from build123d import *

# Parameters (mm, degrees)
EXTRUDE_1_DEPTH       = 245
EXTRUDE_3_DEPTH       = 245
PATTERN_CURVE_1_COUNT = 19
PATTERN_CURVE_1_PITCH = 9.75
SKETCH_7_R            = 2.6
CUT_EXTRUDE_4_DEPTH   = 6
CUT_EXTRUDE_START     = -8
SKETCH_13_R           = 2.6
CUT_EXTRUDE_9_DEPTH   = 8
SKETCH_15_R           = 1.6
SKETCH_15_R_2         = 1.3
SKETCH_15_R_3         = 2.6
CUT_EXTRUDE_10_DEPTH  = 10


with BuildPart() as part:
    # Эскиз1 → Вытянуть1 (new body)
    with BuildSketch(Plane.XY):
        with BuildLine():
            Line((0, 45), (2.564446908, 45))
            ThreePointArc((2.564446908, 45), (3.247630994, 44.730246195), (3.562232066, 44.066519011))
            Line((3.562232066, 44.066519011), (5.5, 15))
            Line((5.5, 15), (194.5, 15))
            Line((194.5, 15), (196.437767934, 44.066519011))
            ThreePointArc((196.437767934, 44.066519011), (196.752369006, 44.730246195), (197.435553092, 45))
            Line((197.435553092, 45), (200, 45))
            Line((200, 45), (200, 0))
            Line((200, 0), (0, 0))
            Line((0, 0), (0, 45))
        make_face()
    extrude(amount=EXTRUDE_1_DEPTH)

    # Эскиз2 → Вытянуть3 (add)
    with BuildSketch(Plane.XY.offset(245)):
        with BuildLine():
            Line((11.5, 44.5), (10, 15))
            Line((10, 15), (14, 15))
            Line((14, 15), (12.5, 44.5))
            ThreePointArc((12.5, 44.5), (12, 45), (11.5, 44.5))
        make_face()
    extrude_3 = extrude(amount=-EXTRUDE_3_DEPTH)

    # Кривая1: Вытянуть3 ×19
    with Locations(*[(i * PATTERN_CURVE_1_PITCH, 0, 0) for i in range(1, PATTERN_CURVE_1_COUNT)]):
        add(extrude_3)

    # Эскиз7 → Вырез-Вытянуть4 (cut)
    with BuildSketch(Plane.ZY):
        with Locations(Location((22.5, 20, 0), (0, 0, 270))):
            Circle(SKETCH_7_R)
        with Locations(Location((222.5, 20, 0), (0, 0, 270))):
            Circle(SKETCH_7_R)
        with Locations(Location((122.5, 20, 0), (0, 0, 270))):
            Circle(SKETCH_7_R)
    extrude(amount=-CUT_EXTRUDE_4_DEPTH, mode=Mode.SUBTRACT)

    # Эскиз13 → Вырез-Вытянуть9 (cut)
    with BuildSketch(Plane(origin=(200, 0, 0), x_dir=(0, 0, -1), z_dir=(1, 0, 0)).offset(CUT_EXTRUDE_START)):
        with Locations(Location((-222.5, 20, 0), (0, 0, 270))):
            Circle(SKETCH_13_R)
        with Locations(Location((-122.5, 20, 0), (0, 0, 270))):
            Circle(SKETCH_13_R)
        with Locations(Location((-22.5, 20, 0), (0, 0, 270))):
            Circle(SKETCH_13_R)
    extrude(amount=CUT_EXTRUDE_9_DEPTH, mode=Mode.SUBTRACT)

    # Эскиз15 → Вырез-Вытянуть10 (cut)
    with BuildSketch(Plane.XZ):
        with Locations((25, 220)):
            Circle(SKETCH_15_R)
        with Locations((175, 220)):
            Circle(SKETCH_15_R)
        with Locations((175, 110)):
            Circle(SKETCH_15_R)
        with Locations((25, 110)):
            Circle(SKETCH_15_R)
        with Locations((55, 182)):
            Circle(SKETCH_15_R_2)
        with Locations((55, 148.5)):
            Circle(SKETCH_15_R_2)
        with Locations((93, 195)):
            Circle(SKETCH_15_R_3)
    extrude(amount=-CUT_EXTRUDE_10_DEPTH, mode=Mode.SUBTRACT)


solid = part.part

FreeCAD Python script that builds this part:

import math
import FreeCAD as App
import Part
import Sketcher

V = App.Vector
Q = App.Units.Quantity

doc = App.newDocument("Part")
params = doc.addObject("Spreadsheet::Sheet", "Params")
for row, (alias, value) in enumerate([
    ("sketch1_radius", "1 mm"),
    ("sketch1_width", "200 mm"),
    ("sketch1_width2", "189 mm"),
    ("sketch1_height", "45 mm"),
    ("pad1_length", "245 mm"),
    ("sketch2_radius", "0.5 mm"),
    ("sketch2_width", "4 mm"),
    ("pad2_length", "245 mm"),
    ("linearpattern_pitch", "9.75 mm"),
    ("sketch3_diameter", "5.2 mm"),
    ("pocket1_length", "6 mm"),
    ("sketch4_diameter", "5.2 mm"),
    ("pocket2_length", "8 mm"),
    ("sketch5_diameter", "3.2 mm"),
    ("sketch5_diameter2", "2.6 mm"),
    ("sketch5_diameter3", "5.2 mm"),
    ("pocket3_length", "10 mm"),
], start=1):
    params.set(f"A{row}", alias)
    params.set(f"B{row}", "=" + value)
    params.setAlias(f"B{row}", alias)

body = doc.addObject("PartDesign::Body", "Body")

sketch1 = doc.addObject("Sketcher::SketchObject", "Sketch")
body.addObject(sketch1)
sketch1.AttachmentSupport = (doc.XY_Plane, [""])
sketch1.MapMode = "FlatFace"
sketch1.addGeometry([
    Part.LineSegment(V(2.6, 45, 0), V(0, 45, 0)),
    Part.LineSegment(V(0, 45, 0), V(0, 0, 0)),
    Part.LineSegment(V(0, 0, 0), V(200, 0, 0)),
    Part.LineSegment(V(200, 0, 0), V(200, 45, 0)),
    Part.LineSegment(V(200, 45, 0), V(197.4, 45, 0)),
    Part.ArcOfCircle(Part.Circle(V(197.4, 44, 0), V(0, 0, 1), 1), math.radians(90), math.radians(176)),
    Part.LineSegment(V(196.4, 44.1, 0), V(194.5, 15, 0)),
    Part.LineSegment(V(194.5, 15, 0), V(5.5, 15, 0)),
    Part.LineSegment(V(5.5, 15, 0), V(3.6, 44.1, 0)),
    Part.ArcOfCircle(Part.Circle(V(2.6, 44, 0), V(0, 0, 1), 1), math.radians(4), math.radians(90)),
], False)
sketch1.addConstraint([
    Sketcher.Constraint("Coincident", 0, 2, 1, 1),
    Sketcher.Constraint("Coincident", 1, 2, 2, 1),
    Sketcher.Constraint("Coincident", 2, 2, 3, 1),
    Sketcher.Constraint("Coincident", 3, 2, 4, 1),
    Sketcher.Constraint("Tangent", 4, 2, 5, 1),
    Sketcher.Constraint("Tangent", 5, 2, 6, 1),
    Sketcher.Constraint("Coincident", 6, 2, 7, 1),
    Sketcher.Constraint("Coincident", 7, 2, 8, 1),
    Sketcher.Constraint("Tangent", 8, 2, 9, 1),
    Sketcher.Constraint("Tangent", 9, 2, 0, 1),
    Sketcher.Constraint("Horizontal", 0),
    Sketcher.Constraint("Vertical", 1),
    Sketcher.Constraint("Horizontal", 2),
    Sketcher.Constraint("Vertical", 3),
    Sketcher.Constraint("Horizontal", 4),
    Sketcher.Constraint("Horizontal", 7),
    Sketcher.Constraint("Coincident", 1, 2, -1, 1),
    Sketcher.Constraint("Equal", 5, 9),
    Sketcher.Constraint("Horizontal", 5, 3, 9, 3),
    Sketcher.Constraint("Horizontal", 5, 2, 8, 2),
    Sketcher.Constraint("Equal", 0, 4),
    Sketcher.Constraint("Radius", 5, Q("1 mm")),
    Sketcher.Constraint("DistanceX", 2, 1, 2, 2, Q("200 mm")),
    Sketcher.Constraint("DistanceX", 7, 2, 7, 1, Q("189 mm")),
    Sketcher.Constraint("DistanceY", 1, 2, 1, 1, Q("45 mm")),
    Sketcher.Constraint("DistanceY", -1, 1, 6, 2, Q("15 mm")),
    Sketcher.Constraint("Distance", 6, Q("29.13104 mm")),
])
sketch1.setExpression("Constraints[21]", "Params.sketch1_radius")
sketch1.setExpression("Constraints[22]", "Params.sketch1_width")
sketch1.setExpression("Constraints[23]", "Params.sketch1_width2")
sketch1.setExpression("Constraints[24]", "Params.sketch1_height")
pad1 = doc.addObject("PartDesign::Pad", "Pad")
body.addObject(pad1)
pad1.Profile = sketch1
pad1.setExpression("Length", "Params.pad1_length")

sketch2 = doc.addObject("Sketcher::SketchObject", "Sketch001")
body.addObject(sketch2)
sketch2.AttachmentSupport = (doc.XY_Plane, [""])
sketch2.MapMode = "FlatFace"
sketch2.AttachmentOffset = App.Placement(V(0, 0, 245), App.Rotation())
sketch2.addGeometry([
    Part.LineSegment(V(11.5, 44.5, 0), V(10, 15, 0)),
    Part.LineSegment(V(10, 15, 0), V(14, 15, 0)),
    Part.LineSegment(V(14, 15, 0), V(12.5, 44.5, 0)),
    Part.ArcOfCircle(Part.Circle(V(12, 44.5, 0), V(0, 0, 1), 0.5), math.radians(0), math.radians(180)),
], False)
sketch2.addConstraint([
    Sketcher.Constraint("Coincident", 0, 2, 1, 1),
    Sketcher.Constraint("Coincident", 1, 2, 2, 1),
    Sketcher.Constraint("Coincident", 2, 2, 3, 1),
    Sketcher.Constraint("Coincident", 3, 2, 0, 1),
    Sketcher.Constraint("Horizontal", 1),
    Sketcher.Constraint("Horizontal", 3, 3, 2, 2),
    Sketcher.Constraint("Horizontal", 2, 2, 3, 2),
    Sketcher.Constraint("Equal", 0, 2),
    Sketcher.Constraint("Radius", 3, Q("0.5 mm")),
    Sketcher.Constraint("DistanceX", 1, 1, 1, 2, Q("4 mm")),
    Sketcher.Constraint("DistanceX", -1, 1, 3, 3, Q("12 mm")),
    Sketcher.Constraint("DistanceY", -1, 1, 0, 2, Q("15 mm")),
    Sketcher.Constraint("DistanceY", -1, 1, 3, 3, Q("44.5 mm")),
])
sketch2.setExpression("Constraints[8]", "Params.sketch2_radius")
sketch2.setExpression("Constraints[9]", "Params.sketch2_width")
pad2 = doc.addObject("PartDesign::Pad", "Pad001")
body.addObject(pad2)
pad2.Profile = sketch2
pad2.setExpression("Length", "Params.pad2_length")
pad2.Reversed = True
doc.recompute()

linearpattern = doc.addObject("PartDesign::LinearPattern", "LinearPattern")
body.addObject(linearpattern)
linearpattern.Originals = [pad2]
linearpattern.Direction = (doc.X_Axis, [""])
linearpattern.Mode = "offset"
linearpattern.setExpression("Offset", "Params.linearpattern_pitch")
linearpattern.Occurrences = 19
body.Tip = linearpattern

sketch3 = doc.addObject("Sketcher::SketchObject", "Sketch002")
body.addObject(sketch3)
sketch3.AttachmentSupport = (doc.YZ_Plane, [""])
sketch3.MapMode = "FlatFace"
sketch3.addGeometry([
    Part.Circle(V(20, 22.5, 0), V(0, 0, 1), 2.6),
    Part.Circle(V(20, 222.5, 0), V(0, 0, 1), 2.6),
    Part.Circle(V(20, 122.5, 0), V(0, 0, 1), 2.6),
], False)
sketch3.addConstraint([
    Sketcher.Constraint("Equal", 0, 1),
    Sketcher.Constraint("Equal", 1, 2),
    Sketcher.Constraint("Vertical", 0, 3, 1, 3),
    Sketcher.Constraint("Vertical", 1, 3, 2, 3),
    Sketcher.Constraint("Diameter", 0, Q("5.2 mm")),
    Sketcher.Constraint("DistanceX", -1, 1, 0, 3, Q("20 mm")),
    Sketcher.Constraint("DistanceY", 0, 3, 1, 3, Q("200 mm")),
    Sketcher.Constraint("DistanceY", 0, 3, 2, 3, Q("100 mm")),
    Sketcher.Constraint("DistanceY", -1, 1, 0, 3, Q("22.5 mm")),
])
sketch3.setExpression("Constraints[4]", "Params.sketch3_diameter")
pocket1 = doc.addObject("PartDesign::Pocket", "Pocket")
body.addObject(pocket1)
pocket1.Profile = sketch3
pocket1.setExpression("Length", "Params.pocket1_length")
pocket1.Reversed = True

sketch4 = doc.addObject("Sketcher::SketchObject", "Sketch003")
body.addObject(sketch4)
sketch4.AttachmentSupport = (doc.YZ_Plane, [""])
sketch4.MapMode = "FlatFace"
sketch4.AttachmentOffset = App.Placement(V(0, 0, 192), App.Rotation())
sketch4.addGeometry([
    Part.Circle(V(20, 222.5, 0), V(0, 0, 1), 2.6),
    Part.Circle(V(20, 122.5, 0), V(0, 0, 1), 2.6),
    Part.Circle(V(20, 22.5, 0), V(0, 0, 1), 2.6),
], False)
sketch4.addConstraint([
    Sketcher.Constraint("Equal", 0, 1),
    Sketcher.Constraint("Equal", 1, 2),
    Sketcher.Constraint("Vertical", 0, 3, 1, 3),
    Sketcher.Constraint("Vertical", 1, 3, 2, 3),
    Sketcher.Constraint("Diameter", 0, Q("5.2 mm")),
    Sketcher.Constraint("DistanceX", -1, 1, 0, 3, Q("20 mm")),
    Sketcher.Constraint("DistanceY", 1, 3, 0, 3, Q("100 mm")),
    Sketcher.Constraint("DistanceY", 2, 3, 1, 3, Q("100 mm")),
    Sketcher.Constraint("DistanceY", -1, 1, 0, 3, Q("222.5 mm")),
])
sketch4.setExpression("Constraints[4]", "Params.sketch4_diameter")
pocket2 = doc.addObject("PartDesign::Pocket", "Pocket001")
body.addObject(pocket2)
pocket2.Profile = sketch4
pocket2.setExpression("Length", "Params.pocket2_length")
pocket2.Reversed = True

sketch5 = doc.addObject("Sketcher::SketchObject", "Sketch004")
body.addObject(sketch5)
sketch5.AttachmentSupport = (doc.XZ_Plane, [""])
sketch5.MapMode = "FlatFace"
sketch5.addGeometry([
    Part.Circle(V(25, 220, 0), V(0, 0, 1), 1.6),
    Part.Circle(V(175, 220, 0), V(0, 0, 1), 1.6),
    Part.Circle(V(175, 110, 0), V(0, 0, 1), 1.6),
    Part.Circle(V(25, 110, 0), V(0, 0, 1), 1.6),
    Part.Circle(V(55, 182, 0), V(0, 0, 1), 1.3),
    Part.Circle(V(55, 148.5, 0), V(0, 0, 1), 1.3),
    Part.Circle(V(93, 195, 0), V(0, 0, 1), 2.6),
], False)
sketch5.addConstraint([
    Sketcher.Constraint("Equal", 0, 1),
    Sketcher.Constraint("Equal", 1, 2),
    Sketcher.Constraint("Equal", 2, 3),
    Sketcher.Constraint("Equal", 4, 5),
    Sketcher.Constraint("Horizontal", 0, 3, 1, 3),
    Sketcher.Constraint("Horizontal", 2, 3, 3, 3),
    Sketcher.Constraint("Vertical", 1, 3, 2, 3),
    Sketcher.Constraint("Vertical", 0, 3, 3, 3),
    Sketcher.Constraint("Vertical", 4, 3, 5, 3),
    Sketcher.Constraint("Diameter", 0, Q("3.2 mm")),
    Sketcher.Constraint("Diameter", 4, Q("2.6 mm")),
    Sketcher.Constraint("Diameter", 6, Q("5.2 mm")),
    Sketcher.Constraint("DistanceX", -1, 1, 0, 3, Q("25 mm")),
    Sketcher.Constraint("DistanceY", -1, 1, 0, 3, Q("220 mm")),
    Sketcher.Constraint("DistanceX", -1, 1, 1, 3, Q("175 mm")),
    Sketcher.Constraint("DistanceY", -1, 1, 2, 3, Q("110 mm")),
    Sketcher.Constraint("DistanceX", -1, 1, 4, 3, Q("55 mm")),
    Sketcher.Constraint("DistanceY", -1, 1, 4, 3, Q("182 mm")),
    Sketcher.Constraint("DistanceX", -1, 1, 6, 3, Q("93 mm")),
    Sketcher.Constraint("DistanceY", -1, 1, 6, 3, Q("195 mm")),
    Sketcher.Constraint("DistanceY", -1, 1, 5, 3, Q("148.5 mm")),
])
sketch5.setExpression("Constraints[9]", "Params.sketch5_diameter")
sketch5.setExpression("Constraints[10]", "Params.sketch5_diameter2")
sketch5.setExpression("Constraints[11]", "Params.sketch5_diameter3")
pocket3 = doc.addObject("PartDesign::Pocket", "Pocket002")
body.addObject(pocket3)
pocket3.Profile = sketch5
pocket3.setExpression("Length", "Params.pocket3_length")

doc.recompute()
